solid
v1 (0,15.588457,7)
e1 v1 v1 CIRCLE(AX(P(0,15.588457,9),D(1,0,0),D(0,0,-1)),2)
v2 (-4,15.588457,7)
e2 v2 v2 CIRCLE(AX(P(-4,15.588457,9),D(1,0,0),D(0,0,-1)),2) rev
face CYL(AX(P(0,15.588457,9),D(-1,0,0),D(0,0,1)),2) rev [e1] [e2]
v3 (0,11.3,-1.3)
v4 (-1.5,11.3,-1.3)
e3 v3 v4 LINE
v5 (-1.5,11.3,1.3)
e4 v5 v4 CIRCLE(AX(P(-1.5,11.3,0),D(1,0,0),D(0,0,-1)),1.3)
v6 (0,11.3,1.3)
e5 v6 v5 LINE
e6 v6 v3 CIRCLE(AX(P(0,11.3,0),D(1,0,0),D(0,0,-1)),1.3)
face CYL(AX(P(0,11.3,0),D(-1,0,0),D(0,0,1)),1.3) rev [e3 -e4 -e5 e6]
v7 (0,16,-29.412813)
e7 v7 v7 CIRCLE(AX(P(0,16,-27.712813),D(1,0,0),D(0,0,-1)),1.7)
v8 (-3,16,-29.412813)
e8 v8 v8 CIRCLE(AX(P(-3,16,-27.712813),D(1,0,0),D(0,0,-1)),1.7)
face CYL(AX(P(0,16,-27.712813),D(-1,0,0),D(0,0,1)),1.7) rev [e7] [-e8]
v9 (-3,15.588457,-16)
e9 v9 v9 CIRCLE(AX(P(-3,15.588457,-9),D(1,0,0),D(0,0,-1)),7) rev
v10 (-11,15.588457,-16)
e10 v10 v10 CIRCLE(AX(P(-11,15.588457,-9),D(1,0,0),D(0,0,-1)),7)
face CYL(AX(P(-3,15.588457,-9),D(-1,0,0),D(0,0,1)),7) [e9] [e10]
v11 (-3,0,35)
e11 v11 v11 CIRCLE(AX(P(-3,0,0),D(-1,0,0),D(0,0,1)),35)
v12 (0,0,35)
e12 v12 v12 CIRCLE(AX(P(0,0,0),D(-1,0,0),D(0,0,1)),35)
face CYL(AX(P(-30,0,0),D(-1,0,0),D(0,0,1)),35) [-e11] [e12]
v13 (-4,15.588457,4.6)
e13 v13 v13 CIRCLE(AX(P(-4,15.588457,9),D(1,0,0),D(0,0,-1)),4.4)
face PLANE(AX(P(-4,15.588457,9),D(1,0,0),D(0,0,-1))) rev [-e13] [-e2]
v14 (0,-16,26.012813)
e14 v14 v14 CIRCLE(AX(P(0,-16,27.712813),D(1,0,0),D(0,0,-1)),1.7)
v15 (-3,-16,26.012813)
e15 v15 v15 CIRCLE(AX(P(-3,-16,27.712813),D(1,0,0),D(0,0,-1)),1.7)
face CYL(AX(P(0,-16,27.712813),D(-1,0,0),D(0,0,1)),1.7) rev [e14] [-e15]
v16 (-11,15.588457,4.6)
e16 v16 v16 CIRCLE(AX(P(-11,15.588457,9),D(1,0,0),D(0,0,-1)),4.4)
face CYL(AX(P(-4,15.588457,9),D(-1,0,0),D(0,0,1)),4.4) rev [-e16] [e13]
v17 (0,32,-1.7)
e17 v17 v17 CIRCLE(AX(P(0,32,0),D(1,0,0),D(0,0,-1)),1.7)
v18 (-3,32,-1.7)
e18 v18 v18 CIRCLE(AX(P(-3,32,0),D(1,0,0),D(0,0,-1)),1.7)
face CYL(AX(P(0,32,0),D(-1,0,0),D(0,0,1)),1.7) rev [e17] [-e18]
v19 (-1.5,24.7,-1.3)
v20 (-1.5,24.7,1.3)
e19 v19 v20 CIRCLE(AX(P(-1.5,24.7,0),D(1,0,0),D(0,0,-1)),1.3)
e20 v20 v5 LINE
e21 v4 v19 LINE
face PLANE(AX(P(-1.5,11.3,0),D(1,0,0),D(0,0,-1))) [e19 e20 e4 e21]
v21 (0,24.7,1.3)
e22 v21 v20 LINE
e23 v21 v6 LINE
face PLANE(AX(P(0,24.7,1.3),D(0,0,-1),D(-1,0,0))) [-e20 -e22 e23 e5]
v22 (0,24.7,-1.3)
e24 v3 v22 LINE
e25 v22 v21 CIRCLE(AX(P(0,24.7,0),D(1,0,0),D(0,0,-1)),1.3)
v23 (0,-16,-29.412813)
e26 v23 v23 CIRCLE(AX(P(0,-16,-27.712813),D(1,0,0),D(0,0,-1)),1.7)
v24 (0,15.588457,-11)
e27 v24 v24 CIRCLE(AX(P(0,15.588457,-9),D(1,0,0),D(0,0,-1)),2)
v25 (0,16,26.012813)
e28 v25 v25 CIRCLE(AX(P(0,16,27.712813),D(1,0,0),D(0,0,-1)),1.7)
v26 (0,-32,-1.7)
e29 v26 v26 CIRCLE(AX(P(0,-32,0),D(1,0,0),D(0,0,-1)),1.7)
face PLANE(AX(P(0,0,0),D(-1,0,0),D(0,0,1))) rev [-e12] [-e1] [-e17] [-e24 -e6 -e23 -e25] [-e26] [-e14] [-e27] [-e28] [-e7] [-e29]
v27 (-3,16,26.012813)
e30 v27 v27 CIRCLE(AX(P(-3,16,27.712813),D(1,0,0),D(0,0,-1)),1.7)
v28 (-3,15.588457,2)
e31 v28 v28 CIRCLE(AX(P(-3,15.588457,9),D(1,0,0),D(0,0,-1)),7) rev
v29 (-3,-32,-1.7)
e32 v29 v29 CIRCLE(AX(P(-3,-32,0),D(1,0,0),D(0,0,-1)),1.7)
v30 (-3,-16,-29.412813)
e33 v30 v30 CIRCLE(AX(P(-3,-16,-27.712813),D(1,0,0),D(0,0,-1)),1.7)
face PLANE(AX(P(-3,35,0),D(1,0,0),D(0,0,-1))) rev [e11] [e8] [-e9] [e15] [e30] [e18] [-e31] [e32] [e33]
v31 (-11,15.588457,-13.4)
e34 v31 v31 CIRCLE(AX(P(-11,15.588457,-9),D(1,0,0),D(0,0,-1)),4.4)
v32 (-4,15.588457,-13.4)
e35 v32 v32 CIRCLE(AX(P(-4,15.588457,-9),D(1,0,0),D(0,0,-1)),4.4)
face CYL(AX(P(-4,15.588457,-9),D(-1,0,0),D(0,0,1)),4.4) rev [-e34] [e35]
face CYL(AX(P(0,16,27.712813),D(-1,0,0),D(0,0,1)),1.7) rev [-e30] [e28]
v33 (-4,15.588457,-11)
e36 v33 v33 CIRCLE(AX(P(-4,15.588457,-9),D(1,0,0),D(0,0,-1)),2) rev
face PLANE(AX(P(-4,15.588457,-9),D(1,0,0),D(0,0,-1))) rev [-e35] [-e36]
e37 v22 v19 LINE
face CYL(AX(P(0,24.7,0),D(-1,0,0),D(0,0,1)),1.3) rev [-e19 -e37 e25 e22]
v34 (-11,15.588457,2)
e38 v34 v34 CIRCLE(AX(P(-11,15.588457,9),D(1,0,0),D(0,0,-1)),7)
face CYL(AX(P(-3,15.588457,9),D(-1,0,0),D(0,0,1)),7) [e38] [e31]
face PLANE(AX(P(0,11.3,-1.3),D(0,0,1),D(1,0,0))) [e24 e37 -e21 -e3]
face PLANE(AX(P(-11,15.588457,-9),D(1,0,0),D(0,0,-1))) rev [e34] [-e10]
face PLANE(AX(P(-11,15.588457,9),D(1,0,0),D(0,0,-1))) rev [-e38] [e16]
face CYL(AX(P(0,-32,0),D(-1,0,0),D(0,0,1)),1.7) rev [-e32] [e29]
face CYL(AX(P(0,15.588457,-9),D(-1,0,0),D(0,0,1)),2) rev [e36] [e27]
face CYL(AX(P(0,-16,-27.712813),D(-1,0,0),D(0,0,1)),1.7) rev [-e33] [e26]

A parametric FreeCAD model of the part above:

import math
import FreeCAD as App
import Part
import Sketcher
from FreeCAD import Vector
Q = App.Units.Quantity


def add_polygon(sketch, points):
    """Adds a closed chain of lines whose ends are joined by coincident constraints."""
    first, n = sketch.GeometryCount, len(points)
    for a, b in zip(points, points[1:] + points[:1]):
        sketch.addGeometry(Part.LineSegment(App.Vector(*a, 0), App.Vector(*b, 0)), False)
    for i in range(n):
        sketch.addConstraint(Sketcher.Constraint("Coincident", first + i, 2, first + (i + 1) % n, 1))

doc = App.newDocument("Part")
params = doc.addObject("Spreadsheet::Sheet", "Params")
for row, (alias, value) in enumerate([
    ("sketch1_width", "3 mm"),
    ("sketch1_height", "35 mm"),
    ("revolution_angle", "360 deg"),
    ("sketch2_diameter", "14 mm"),
    ("pad1_length", "8 mm"),
    ("sketch3_diameter", "3.4 mm"),
    ("pocket1_length", "3 mm"),
    ("sketch4_diameter", "8.8 mm"),
    ("pocket2_length", "7 mm"),
    ("sketch5_diameter", "4 mm"),
    ("pocket3_length", "11 mm"),
    ("sketch6_radius", "1.3 mm"),
    ("sketch6_width", "13.4 mm"),
    ("pocket4_length", "1.5 mm"),
], start=1):
    params.set(f"A{row}", alias)
    params.set(f"B{row}", "=" + value)
    params.setAlias(f"B{row}", alias)

body = doc.addObject("PartDesign::Body", "Body")

sketch1 = body.newObject("Sketcher::SketchObject", "Sketch")
sketch1.AttachmentSupport = (doc.getObject("XY_Plane"), [""])
sketch1.MapMode = "FlatFace"
add_polygon(sketch1, [(-3, 35), (-3, 0), (0, 0), (0, 35)])
sketch1.addConstraint(Sketcher.Constraint("Vertical", 0))
sketch1.addConstraint(Sketcher.Constraint("Horizontal", 1))
sketch1.addConstraint(Sketcher.Constraint("Vertical", 2))
sketch1.addConstraint(Sketcher.Constraint("Horizontal", 3))
sketch1.addConstraint(Sketcher.Constraint("Coincident", 1, 2, -1, 1))
sketch1.addConstraint(Sketcher.Constraint("DistanceX", 1, 1, 1, 2, Q("3 mm")))
sketch1.addConstraint(Sketcher.Constraint("DistanceY", 0, 2, 0, 1, Q("35 mm")))
sketch1.setExpression("Constraints[9]", "Params.sketch1_width")
sketch1.setExpression("Constraints[10]", "Params.sketch1_height")
revolution = body.newObject("PartDesign::Revolution", "Revolution")
revolution.Profile = sketch1
revolution.ReferenceAxis = (sketch1, ["H_Axis"])
revolution.setExpression("Angle", "Params.revolution_angle")

sketch2 = body.newObject("Sketcher::SketchObject", "Sketch001")
sketch2.AttachmentSupport = (doc.getObject("YZ_Plane"), [""])
sketch2.MapMode = "FlatFace"
sketch2.AttachmentOffset = App.Placement(Vector(0, 0, -11), App.Rotation())
sketch2.addGeometry(Part.Circle(Vector(16, 9, 0), Vector(0, 0, 1), 7), False)
sketch2.addGeometry(Part.Circle(Vector(16, -9, 0), Vector(0, 0, 1), 7), False)
sketch2.addConstraint(Sketcher.Constraint("Equal", 0, 1))
sketch2.addConstraint(Sketcher.Constraint("Symmetric", 0, 3, 1, 3, -1))
sketch2.addConstraint(Sketcher.Constraint("Diameter", 0, Q("14 mm")))
sketch2.addConstraint(Sketcher.Constraint("DistanceY", -1, 1, 0, 3, Q("9 mm")))
sketch2.addConstraint(Sketcher.Constraint("DistanceX", -1, 1, 0, 3, Q("15.588457 mm")))
sketch2.setExpression("Constraints[2]", "Params.sketch2_diameter")
pad1 = body.newObject("PartDesign::Pad", "Pad")
pad1.Profile = sketch2
pad1.setExpression("Length", "Params.pad1_length")

sketch3 = body.newObject("Sketcher::SketchObject", "Sketch002")
sketch3.AttachmentSupport = (doc.getObject("YZ_Plane"), [""])
sketch3.MapMode = "FlatFace"
sketch3.AttachmentOffset = App.Placement(Vector(0, 0, -3), App.Rotation())
sketch3.addGeometry(Part.Circle(Vector(32, 0, 0), Vector(0, 0, 1), 1.7), False)
sketch3.addGeometry(Part.Circle(Vector(16, 27.7, 0), Vector(0, 0, 1), 1.7), False)
sketch3.addGeometry(Part.Circle(Vector(-16, 27.7, 0), Vector(0, 0, 1), 1.7), False)
sketch3.addGeometry(Part.Circle(Vector(-32, 0, 0), Vector(0, 0, 1), 1.7), False)
sketch3.addGeometry(Part.Circle(Vector(-16, -27.7, 0), Vector(0, 0, 1), 1.7), False)
sketch3.addGeometry(Part.Circle(Vector(16, -27.7, 0), Vector(0, 0, 1), 1.7), False)
sketch3.addConstraint(Sketcher.Constraint("Equal", 0, 1))
sketch3.addConstraint(Sketcher.Constraint("Equal", 1, 2))
sketch3.addConstraint(Sketcher.Constraint("Equal", 2, 3))
sketch3.addConstraint(Sketcher.Constraint("Equal", 3, 4))
sketch3.addConstraint(Sketcher.Constraint("Equal", 4, 5))
sketch3.addConstraint(Sketcher.Constraint("Symmetric", 0, 3, 3, 3, -1, 1))
sketch3.addConstraint(Sketcher.Constraint("Symmetric", 1, 3, 4, 3, -1, 1))
sketch3.addConstraint(Sketcher.Constraint("Symmetric", 2, 3, 5, 3, -1, 1))
sketch3.addConstraint(Sketcher.Constraint("Symmetric", 1, 3, 2, 3, -2))
sketch3.addConstraint(Sketcher.Constraint("PointOnObject", 0, 3, -1))
sketch3.addConstraint(Sketcher.Constraint("Diameter", 0, Q("3.4 mm")))
sketch3.addConstraint(Sketcher.Constraint("DistanceX", -1, 1, 0, 3, Q("32 mm")))
sketch3.addConstraint(Sketcher.Constraint("DistanceX", -1, 1, 1, 3, Q("16 mm")))
sketch3.addConstraint(Sketcher.Constraint("DistanceY", -1, 1, 1, 3, Q("27.712813 mm")))
sketch3.setExpression("Constraints[10]", "Params.sketch3_diameter")
pocket1 = body.newObject("PartDesign::Pocket", "Pocket")
pocket1.Profile = sketch3
pocket1.setExpression("Length", "Params.pocket1_length")
pocket1.Reversed = True

sketch4 = body.newObject("Sketcher::SketchObject", "Sketch003")
sketch4.AttachmentSupport = (doc.getObject("YZ_Plane"), [""])
sketch4.MapMode = "FlatFace"
sketch4.AttachmentOffset = App.Placement(Vector(0, 0, -11), App.Rotation())
sketch4.addGeometry(Part.Circle(Vector(15.6, 9, 0), Vector(0, 0, 1), 4.4), False)
sketch4.addGeometry(Part.Circle(Vector(15.6, -9, 0), Vector(0, 0, 1), 4.4), False)
sketch4.addConstraint(Sketcher.Constraint("Equal", 0, 1))
sketch4.addConstraint(Sketcher.Constraint("Symmetric", 0, 3, 1, 3, -1))
sketch4.addConstraint(Sketcher.Constraint("Diameter", 0, Q("8.8 mm")))
sketch4.addConstraint(Sketcher.Constraint("DistanceY", -1, 1, 0, 3, Q("9 mm")))
sketch4.addConstraint(Sketcher.Constraint("DistanceX", -1, 1, 0, 3, Q("15.588457 mm")))
sketch4.setExpression("Constraints[2]", "Params.sketch4_diameter")
pocket2 = body.newObject("PartDesign::Pocket", "Pocket001")
pocket2.Profile = sketch4
pocket2.setExpression("Length", "Params.pocket2_length")
pocket2.Reversed = True

sketch5 = body.newObject("Sketcher::SketchObject", "Sketch004")
sketch5.AttachmentSupport = (doc.getObject("YZ_Plane"), [""])
sketch5.MapMode = "FlatFace"
sketch5.AttachmentOffset = App.Placement(Vector(0, 0, -11), App.Rotation())
sketch5.addGeometry(Part.Circle(Vector(15.6, 9, 0), Vector(0, 0, 1), 2), False)
sketch5.addGeometry(Part.Circle(Vector(15.6, -9, 0), Vector(0, 0, 1), 2), False)
sketch5.addConstraint(Sketcher.Constraint("Equal", 0, 1))
sketch5.addConstraint(Sketcher.Constraint("Symmetric", 0, 3, 1, 3, -1))
sketch5.addConstraint(Sketcher.Constraint("Diameter", 0, Q("4 mm")))
sketch5.addConstraint(Sketcher.Constraint("DistanceY", -1, 1, 0, 3, Q("9 mm")))
sketch5.addConstraint(Sketcher.Constraint("DistanceX", -1, 1, 0, 3, Q("15.588457 mm")))
sketch5.setExpression("Constraints[2]", "Params.sketch5_diameter")
pocket3 = body.newObject("PartDesign::Pocket", "Pocket002")
pocket3.Profile = sketch5
pocket3.setExpression("Length", "Params.pocket3_length")
pocket3.Reversed = True

sketch6 = body.newObject("Sketcher::SketchObject", "Sketch005")
sketch6.AttachmentSupport = (doc.getObject("YZ_Plane"), [""])
sketch6.MapMode = "FlatFace"
sketch6.AttachmentOffset = App.Placement(Vector(0, 0, -1.5), App.Rotation())
sketch6.addGeometry(Part.LineSegment(Vector(11.3, -1.3, 0), Vector(24.7, -1.3, 0)), False)
sketch6.addGeometry(Part.ArcOfCircle(Part.Circle(Vector(24.7, 0, 0), Vector(0, 0, 1), 1.3), math.radians(-90), math.radians(90)), False)
sketch6.addGeometry(Part.LineSegment(Vector(24.7, 1.3, 0), Vector(11.3, 1.3, 0)), False)
sketch6.addGeometry(Part.ArcOfCircle(Part.Circle(Vector(11.3, 0, 0), Vector(0, 0, 1), 1.3), math.radians(90), math.radians(270)), False)
sketch6.addConstraint(Sketcher.Constraint("Tangent", 0, 2, 1, 1))
sketch6.addConstraint(Sketcher.Constraint("Tangent", 1, 2, 2, 1))
sketch6.addConstraint(Sketcher.Constraint("Tangent", 2, 2, 3, 1))
sketch6.addConstraint(Sketcher.Constraint("Tangent", 3, 2, 0, 1))
sketch6.addConstraint(Sketcher.Constraint("Horizontal", 0))
sketch6.addConstraint(Sketcher.Constraint("Horizontal", 2))
sketch6.addConstraint(Sketcher.Constraint("PointOnObject", 1, 3, -1))
sketch6.addConstraint(Sketcher.Constraint("Radius", 1, Q("1.3 mm")))
sketch6.addConstraint(Sketcher.Constraint("DistanceX", 0, 1, 0, 2, Q("13.4 mm")))
sketch6.addConstraint(Sketcher.Constraint("DistanceX", -1, 1, 1, 3, Q("24.7 mm")))
sketch6.setExpression("Constraints[7]", "Params.sketch6_radius")
sketch6.setExpression("Constraints[8]", "Params.sketch6_width")
pocket4 = body.newObject("PartDesign::Pocket", "Pocket003")
pocket4.Profile = sketch6
pocket4.setExpression("Length", "Params.pocket4_length")
pocket4.Reversed = True

doc.recompute()
